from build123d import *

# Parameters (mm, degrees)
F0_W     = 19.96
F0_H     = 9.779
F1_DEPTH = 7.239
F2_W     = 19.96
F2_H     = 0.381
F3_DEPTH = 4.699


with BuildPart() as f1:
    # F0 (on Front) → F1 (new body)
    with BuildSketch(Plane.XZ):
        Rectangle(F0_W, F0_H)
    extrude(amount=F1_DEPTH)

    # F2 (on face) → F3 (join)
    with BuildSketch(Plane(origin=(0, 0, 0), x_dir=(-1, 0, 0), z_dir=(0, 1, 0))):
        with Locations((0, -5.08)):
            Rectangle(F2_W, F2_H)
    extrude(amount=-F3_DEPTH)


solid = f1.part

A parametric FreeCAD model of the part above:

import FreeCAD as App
import Part
import Sketcher
Q = App.Units.Quantity

doc = App.newDocument("Part")
body = doc.addObject("PartDesign::Body", "Body")

# Sketch on XZ plane
sketch1 = body.newObject("Sketcher::SketchObject", "Sketch")
sketch1.AttachmentSupport = (doc.getObject("XZ_Plane"), [""])
sketch1.MapMode = "FlatFace"
sketch1.addGeometry([
    Part.LineSegment(App.Vector(-10, 5, 0), App.Vector(-10, -5, 0)),
    Part.LineSegment(App.Vector(-10, -5, 0), App.Vector(10, -5, 0)),
    Part.LineSegment(App.Vector(10, -5, 0), App.Vector(10, 5, 0)),
    Part.LineSegment(App.Vector(10, 5, 0), App.Vector(-10, 5, 0)),
], False)
sketch1.addConstraint([
    Sketcher.Constraint("Coincident", 0, 2, 1, 1),
    Sketcher.Constraint("Coincident", 1, 2, 2, 1),
    Sketcher.Constraint("Coincident", 2, 2, 3, 1),
    Sketcher.Constraint("Coincident", 3, 2, 0, 1),
    Sketcher.Constraint("Vertical", 0),
    Sketcher.Constraint("Horizontal", 1),
    Sketcher.Constraint("Vertical", 2),
    Sketcher.Constraint("Horizontal", 3),
    Sketcher.Constraint("Symmetric", 0, 2, 2, 2, -1, 1),
    Sketcher.Constraint("DistanceY", 0, 2, 0, 1, Q("0.385 in")),
    Sketcher.Constraint("DistanceX", 1, 1, 1, 2, 19.96),
])
pad1 = body.newObject("PartDesign::Pad", "Pad")
pad1.Profile = sketch1
pad1.Length = Q("0.285 in")

# Sketch on XZ plane
sketch2 = body.newObject("Sketcher::SketchObject", "Sketch001")
sketch2.AttachmentSupport = (doc.getObject("XZ_Plane"), [""])
sketch2.MapMode = "FlatFace"
sketch2.addGeometry([
    Part.LineSegment(App.Vector(9.98, -4.89, 0), App.Vector(9.98, -5.27, 0)),
    Part.LineSegment(App.Vector(9.98, -5.27, 0), App.Vector(-9.98, -5.27, 0)),
    Part.LineSegment(App.Vector(-9.98, -5.27, 0), App.Vector(-9.98, -4.89, 0)),
    Part.LineSegment(App.Vector(-9.98, -4.89, 0), App.Vector(9.98, -4.89, 0)),
], False)
sketch2.addConstraint([
    Sketcher.Constraint("Coincident", 0, 2, 1, 1),
    Sketcher.Constraint("Coincident", 1, 2, 2, 1),
    Sketcher.Constraint("Coincident", 2, 2, 3, 1),
    Sketcher.Constraint("Coincident", 3, 2, 0, 1),
    Sketcher.Constraint("Vertical", 0),
    Sketcher.Constraint("Horizontal", 1),
    Sketcher.Constraint("Vertical", 2),
    Sketcher.Constraint("Horizontal", 3),
    Sketcher.Constraint("DistanceY", 0, 2, 0, 1, Q("0.015 in")),
    Sketcher.Constraint("DistanceX", 1, 2, 1, 1, 19.96),
    Sketcher.Constraint("DistanceY", 0, 2, -1, 1, Q("0.2075 in")),
    Sketcher.Constraint("DistanceX", -1, 1, 0, 2, 9.98),
])
pad2 = body.newObject("PartDesign::Pad", "Pad001")
pad2.Profile = sketch2
pad2.Length = Q("0.185 in")

doc.recompute()
